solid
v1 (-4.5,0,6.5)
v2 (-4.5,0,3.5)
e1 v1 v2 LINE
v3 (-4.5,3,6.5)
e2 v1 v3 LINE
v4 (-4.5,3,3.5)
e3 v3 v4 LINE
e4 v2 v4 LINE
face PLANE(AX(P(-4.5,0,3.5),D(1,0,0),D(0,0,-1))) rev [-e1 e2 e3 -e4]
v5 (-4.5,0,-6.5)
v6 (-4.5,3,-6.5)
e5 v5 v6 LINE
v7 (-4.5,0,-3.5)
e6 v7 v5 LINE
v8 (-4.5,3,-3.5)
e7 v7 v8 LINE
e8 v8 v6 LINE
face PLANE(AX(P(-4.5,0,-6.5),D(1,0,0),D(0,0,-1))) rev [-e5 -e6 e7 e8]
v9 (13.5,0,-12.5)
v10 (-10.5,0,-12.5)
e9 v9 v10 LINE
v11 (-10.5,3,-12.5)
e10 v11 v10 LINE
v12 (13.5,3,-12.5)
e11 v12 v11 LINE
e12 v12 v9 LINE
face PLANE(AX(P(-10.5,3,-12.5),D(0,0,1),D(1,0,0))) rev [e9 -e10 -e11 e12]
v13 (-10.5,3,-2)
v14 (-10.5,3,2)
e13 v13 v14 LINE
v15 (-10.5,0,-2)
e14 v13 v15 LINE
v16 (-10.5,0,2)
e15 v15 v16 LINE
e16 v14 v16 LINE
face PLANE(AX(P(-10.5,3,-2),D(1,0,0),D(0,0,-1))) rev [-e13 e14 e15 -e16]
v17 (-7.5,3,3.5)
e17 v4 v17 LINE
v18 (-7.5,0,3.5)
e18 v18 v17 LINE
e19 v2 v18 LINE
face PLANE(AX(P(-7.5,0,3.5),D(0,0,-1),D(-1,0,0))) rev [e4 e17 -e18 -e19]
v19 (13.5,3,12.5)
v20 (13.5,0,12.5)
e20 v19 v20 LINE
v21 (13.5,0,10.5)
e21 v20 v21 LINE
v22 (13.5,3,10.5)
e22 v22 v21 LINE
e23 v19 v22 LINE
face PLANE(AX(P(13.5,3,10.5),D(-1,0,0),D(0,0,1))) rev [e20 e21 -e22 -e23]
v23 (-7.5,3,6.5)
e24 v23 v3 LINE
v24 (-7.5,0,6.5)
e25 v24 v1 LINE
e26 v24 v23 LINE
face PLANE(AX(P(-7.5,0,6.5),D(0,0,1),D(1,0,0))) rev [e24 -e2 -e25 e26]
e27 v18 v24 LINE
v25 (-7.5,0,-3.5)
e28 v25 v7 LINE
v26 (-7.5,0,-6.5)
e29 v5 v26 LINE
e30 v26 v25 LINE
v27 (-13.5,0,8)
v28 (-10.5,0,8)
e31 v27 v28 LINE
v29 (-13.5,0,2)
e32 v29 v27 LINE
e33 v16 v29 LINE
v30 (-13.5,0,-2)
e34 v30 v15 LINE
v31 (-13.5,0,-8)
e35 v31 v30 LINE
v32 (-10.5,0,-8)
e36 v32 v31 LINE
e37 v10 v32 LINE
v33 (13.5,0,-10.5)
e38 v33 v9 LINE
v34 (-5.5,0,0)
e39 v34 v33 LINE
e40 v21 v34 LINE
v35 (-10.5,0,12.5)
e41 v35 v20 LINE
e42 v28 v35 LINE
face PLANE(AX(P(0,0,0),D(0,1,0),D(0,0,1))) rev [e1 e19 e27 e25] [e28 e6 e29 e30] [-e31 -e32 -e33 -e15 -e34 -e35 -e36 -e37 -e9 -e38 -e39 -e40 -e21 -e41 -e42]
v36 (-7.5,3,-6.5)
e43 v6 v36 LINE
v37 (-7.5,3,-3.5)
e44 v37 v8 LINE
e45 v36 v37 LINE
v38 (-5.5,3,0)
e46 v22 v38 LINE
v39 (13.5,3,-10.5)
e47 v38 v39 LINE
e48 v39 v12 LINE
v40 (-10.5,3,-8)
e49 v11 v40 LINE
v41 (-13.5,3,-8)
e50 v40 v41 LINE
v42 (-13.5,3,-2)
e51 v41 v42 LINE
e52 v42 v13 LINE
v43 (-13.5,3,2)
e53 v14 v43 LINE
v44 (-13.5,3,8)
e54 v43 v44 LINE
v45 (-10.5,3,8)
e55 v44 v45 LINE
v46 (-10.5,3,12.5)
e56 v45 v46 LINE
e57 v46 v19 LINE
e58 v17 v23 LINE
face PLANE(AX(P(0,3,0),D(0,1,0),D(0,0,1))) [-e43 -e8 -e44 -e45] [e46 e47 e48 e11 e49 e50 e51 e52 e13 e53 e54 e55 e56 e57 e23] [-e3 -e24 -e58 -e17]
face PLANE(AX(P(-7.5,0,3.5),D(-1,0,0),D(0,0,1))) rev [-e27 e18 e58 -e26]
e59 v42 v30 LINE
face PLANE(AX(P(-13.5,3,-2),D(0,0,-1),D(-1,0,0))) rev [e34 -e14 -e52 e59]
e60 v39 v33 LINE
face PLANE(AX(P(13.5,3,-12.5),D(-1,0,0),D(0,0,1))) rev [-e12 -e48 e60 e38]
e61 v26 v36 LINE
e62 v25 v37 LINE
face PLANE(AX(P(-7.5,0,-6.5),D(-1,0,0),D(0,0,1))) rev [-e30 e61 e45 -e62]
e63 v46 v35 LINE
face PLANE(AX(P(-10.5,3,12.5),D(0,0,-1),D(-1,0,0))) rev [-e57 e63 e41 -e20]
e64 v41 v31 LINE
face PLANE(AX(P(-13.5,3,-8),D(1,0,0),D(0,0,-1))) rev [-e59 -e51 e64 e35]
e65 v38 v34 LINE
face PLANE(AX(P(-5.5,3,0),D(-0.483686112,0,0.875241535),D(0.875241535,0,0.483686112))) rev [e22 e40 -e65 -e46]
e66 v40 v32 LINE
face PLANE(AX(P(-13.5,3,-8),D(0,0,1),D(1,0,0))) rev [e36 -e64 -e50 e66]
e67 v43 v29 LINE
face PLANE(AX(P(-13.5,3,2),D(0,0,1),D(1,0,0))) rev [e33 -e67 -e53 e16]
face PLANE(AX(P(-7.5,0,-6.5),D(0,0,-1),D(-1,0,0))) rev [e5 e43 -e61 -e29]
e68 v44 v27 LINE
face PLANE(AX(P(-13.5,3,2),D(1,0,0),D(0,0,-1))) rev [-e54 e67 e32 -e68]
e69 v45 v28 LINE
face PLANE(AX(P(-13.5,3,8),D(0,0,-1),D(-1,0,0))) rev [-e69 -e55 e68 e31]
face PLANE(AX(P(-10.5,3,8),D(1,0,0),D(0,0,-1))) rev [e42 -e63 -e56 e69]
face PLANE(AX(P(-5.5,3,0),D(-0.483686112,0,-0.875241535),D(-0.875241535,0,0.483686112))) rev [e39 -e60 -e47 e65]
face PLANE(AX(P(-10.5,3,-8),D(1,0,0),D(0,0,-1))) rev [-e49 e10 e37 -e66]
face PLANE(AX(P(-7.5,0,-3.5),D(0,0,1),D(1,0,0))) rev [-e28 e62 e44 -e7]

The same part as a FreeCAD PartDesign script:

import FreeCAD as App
import Part
import Sketcher

V = App.Vector
Q = App.Units.Quantity


def add_polygon(sketch, points):
    """Adds a closed chain of lines whose ends are joined by coincident constraints."""
    first, n = sketch.GeometryCount, len(points)
    for a, b in zip(points, points[1:] + points[:1]):
        sketch.addGeometry(Part.LineSegment(App.Vector(*a, 0), App.Vector(*b, 0)), False)
    for i in range(n):
        sketch.addConstraint(Sketcher.Constraint("Coincident", first + i, 2, first + (i + 1) % n, 1))

doc = App.newDocument("Part")
body = doc.addObject("PartDesign::Body", "Body")

sketch1 = body.newObject("Sketcher::SketchObject", "Sketch")
sketch1.AttachmentSupport = (doc.getObject("XZ_Plane"), [""])
sketch1.MapMode = "FlatFace"
add_polygon(sketch1, [(-5.5, 0), (13.5, -10.5), (13.5, -12.5), (-10.5, -12.5), (-10.5, -8), (-13.5, -8), (-13.5, -2), (-10.5, -2), (-10.5, 2), (-13.5, 2), (-13.5, 8), (-10.5, 8), (-10.5, 12.5), (13.5, 12.5), (13.5, 10.5)])
sketch1.addConstraint(Sketcher.Constraint("Vertical", 1))
sketch1.addConstraint(Sketcher.Constraint("Horizontal", 2))
sketch1.addConstraint(Sketcher.Constraint("Vertical", 3))
sketch1.addConstraint(Sketcher.Constraint("Horizontal", 4))
sketch1.addConstraint(Sketcher.Constraint("Vertical", 5))
sketch1.addConstraint(Sketcher.Constraint("Horizontal", 6))
sketch1.addConstraint(Sketcher.Constraint("Vertical", 7))
sketch1.addConstraint(Sketcher.Constraint("Horizontal", 8))
sketch1.addConstraint(Sketcher.Constraint("Vertical", 9))
sketch1.addConstraint(Sketcher.Constraint("Horizontal", 10))
sketch1.addConstraint(Sketcher.Constraint("Vertical", 11))
sketch1.addConstraint(Sketcher.Constraint("Horizontal", 12))
sketch1.addConstraint(Sketcher.Constraint("Vertical", 13))
sketch1.addConstraint(Sketcher.Constraint("Symmetric", 5, 2, 8, 2, -1))
sketch1.addConstraint(Sketcher.Constraint("Symmetric", 3, 2, 10, 2, -1))
sketch1.addConstraint(Sketcher.Constraint("Symmetric", 1, 2, 12, 2, -1))
sketch1.addConstraint(Sketcher.Constraint("PointOnObject", 14, 2, -1))
sketch1.addConstraint(Sketcher.Constraint("Vertical", 3, 2, 6, 2))
sketch1.addConstraint(Sketcher.Constraint("Equal", 1, 13))
sketch1.addConstraint(Sketcher.Constraint("DistanceX", 2, 2, 2, 1, Q("24 mm")))
sketch1.addConstraint(Sketcher.Constraint("DistanceX", 4, 2, 4, 1, Q("3 mm")))
sketch1.addConstraint(Sketcher.Constraint("DistanceY", 1, 2, 1, 1, Q("2 mm")))
sketch1.addConstraint(Sketcher.Constraint("DistanceY", 5, 1, 5, 2, Q("6 mm")))
sketch1.addConstraint(Sketcher.Constraint("DistanceY", 7, 1, 7, 2, Q("4 mm")))
sketch1.addConstraint(Sketcher.Constraint("DistanceY", 3, 1, 3, 2, Q("4.5 mm")))
sketch1.addConstraint(Sketcher.Constraint("DistanceX", 6, 2, 14, 2, Q("5 mm")))
sketch1.addConstraint(Sketcher.Constraint("DistanceX", -1, 1, 0, 2, Q("13.5 mm")))
pad1 = body.newObject("PartDesign::Pad", "Pad")
pad1.Profile = sketch1
pad1.Length = 3
pad1.Reversed = True

sketch2 = body.newObject("Sketcher::SketchObject", "Sketch001")
sketch2.AttachmentSupport = (doc.getObject("XZ_Plane"), [""])
sketch2.MapMode = "FlatFace"
sketch2.AttachmentOffset = App.Placement(V(0, 0, -3), App.Rotation())
add_polygon(sketch2, [(-7.5, -6.5), (-7.5, -3.5), (-4.5, -3.5), (-4.5, -6.5)])
add_polygon(sketch2, [(-7.5, 3.5), (-7.5, 6.5), (-4.5, 6.5), (-4.5, 3.5)])
sketch2.addConstraint(Sketcher.Constraint("Vertical", 0))
sketch2.addConstraint(Sketcher.Constraint("Horizontal", 1))
sketch2.addConstraint(Sketcher.Constraint("Vertical", 2))
sketch2.addConstraint(Sketcher.Constraint("Horizontal", 3))
sketch2.addConstraint(Sketcher.Constraint("Vertical", 4))
sketch2.addConstraint(Sketcher.Constraint("Horizontal", 5))
sketch2.addConstraint(Sketcher.Constraint("Vertical", 6))
sketch2.addConstraint(Sketcher.Constraint("Horizontal", 7))
sketch2.addConstraint(Sketcher.Constraint("Symmetric", 3, 2, 4, 2, -1))
sketch2.addConstraint(Sketcher.Constraint("Symmetric", 1, 2, 6, 2, -1))
sketch2.addConstraint(Sketcher.Constraint("Equal", 7, 0))
sketch2.addConstraint(Sketcher.Constraint("DistanceX", 1, 1, 1, 2, Q("3 mm")))
sketch2.addConstraint(Sketcher.Constraint("DistanceY", 0, 2, 4, 2, Q("10 mm")))
sketch2.addConstraint(Sketcher.Constraint("DistanceX", 0, 2, -1, 1, Q("7.5 mm")))
pocket1 = body.newObject("PartDesign::Pocket", "Pocket")
pocket1.Profile = sketch2
pocket1.Length = 3
pocket1.Reversed = True

doc.recompute()
